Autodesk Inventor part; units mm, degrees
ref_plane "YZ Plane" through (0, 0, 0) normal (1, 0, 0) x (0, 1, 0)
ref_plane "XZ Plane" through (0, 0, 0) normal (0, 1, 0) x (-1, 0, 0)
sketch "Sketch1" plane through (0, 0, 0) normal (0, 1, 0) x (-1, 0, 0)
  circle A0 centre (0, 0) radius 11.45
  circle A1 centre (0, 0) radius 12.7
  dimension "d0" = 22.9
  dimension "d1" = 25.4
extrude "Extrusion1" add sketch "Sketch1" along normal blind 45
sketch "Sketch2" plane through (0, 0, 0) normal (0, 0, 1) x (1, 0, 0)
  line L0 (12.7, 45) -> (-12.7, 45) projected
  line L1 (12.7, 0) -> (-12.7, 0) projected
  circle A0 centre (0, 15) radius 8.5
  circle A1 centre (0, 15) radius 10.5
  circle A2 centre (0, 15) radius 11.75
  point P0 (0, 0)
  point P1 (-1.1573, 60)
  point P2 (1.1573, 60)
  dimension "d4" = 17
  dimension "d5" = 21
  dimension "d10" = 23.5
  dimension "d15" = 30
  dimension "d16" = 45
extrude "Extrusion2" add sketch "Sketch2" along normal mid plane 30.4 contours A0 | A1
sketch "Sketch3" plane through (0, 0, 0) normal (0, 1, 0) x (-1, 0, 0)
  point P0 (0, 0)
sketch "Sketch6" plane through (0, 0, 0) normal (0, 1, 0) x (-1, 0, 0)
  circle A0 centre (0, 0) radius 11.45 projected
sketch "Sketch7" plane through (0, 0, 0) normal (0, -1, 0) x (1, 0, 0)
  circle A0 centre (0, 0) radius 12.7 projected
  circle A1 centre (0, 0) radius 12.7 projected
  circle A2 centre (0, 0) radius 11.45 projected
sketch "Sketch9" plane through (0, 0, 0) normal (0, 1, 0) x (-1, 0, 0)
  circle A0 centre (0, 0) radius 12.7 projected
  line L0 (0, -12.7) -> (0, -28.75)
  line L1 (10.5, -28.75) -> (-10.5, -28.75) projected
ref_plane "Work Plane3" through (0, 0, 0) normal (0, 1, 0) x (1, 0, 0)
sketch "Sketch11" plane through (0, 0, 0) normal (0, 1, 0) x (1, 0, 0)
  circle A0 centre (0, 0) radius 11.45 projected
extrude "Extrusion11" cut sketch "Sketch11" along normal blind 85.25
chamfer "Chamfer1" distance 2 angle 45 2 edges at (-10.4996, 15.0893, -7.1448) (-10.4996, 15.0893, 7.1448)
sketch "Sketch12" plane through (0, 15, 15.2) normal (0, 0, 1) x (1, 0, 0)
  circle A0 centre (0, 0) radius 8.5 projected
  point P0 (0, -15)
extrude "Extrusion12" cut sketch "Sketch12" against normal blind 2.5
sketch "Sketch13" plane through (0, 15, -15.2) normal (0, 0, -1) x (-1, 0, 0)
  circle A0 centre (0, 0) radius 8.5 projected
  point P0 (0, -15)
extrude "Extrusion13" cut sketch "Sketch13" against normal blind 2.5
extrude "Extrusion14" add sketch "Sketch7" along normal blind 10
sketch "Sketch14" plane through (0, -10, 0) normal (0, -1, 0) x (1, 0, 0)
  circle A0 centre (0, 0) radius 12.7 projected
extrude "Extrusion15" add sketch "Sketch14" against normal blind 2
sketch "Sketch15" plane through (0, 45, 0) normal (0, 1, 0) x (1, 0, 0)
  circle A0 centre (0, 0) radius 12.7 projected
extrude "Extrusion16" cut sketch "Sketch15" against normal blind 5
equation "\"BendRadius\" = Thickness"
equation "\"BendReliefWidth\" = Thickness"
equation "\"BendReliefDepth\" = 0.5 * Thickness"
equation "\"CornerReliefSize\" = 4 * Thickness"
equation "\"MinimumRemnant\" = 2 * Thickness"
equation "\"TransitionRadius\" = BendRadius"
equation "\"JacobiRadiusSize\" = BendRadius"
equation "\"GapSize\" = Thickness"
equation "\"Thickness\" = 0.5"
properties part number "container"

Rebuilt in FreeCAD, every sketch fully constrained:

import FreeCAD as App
import Part
import Sketcher
from FreeCAD import Vector
Q = App.Units.Quantity


def edges_at(feature, points):
    """Names of the edges that pass closest to the given points."""
    edges = feature.Shape.Edges
    near = lambda p: min(range(len(edges)), key=lambda i: edges[i].distToShape(Part.Vertex(*p))[0])
    return sorted({f"Edge{near(p) + 1}" for p in points})

doc = App.newDocument("Part")
body = doc.addObject("PartDesign::Body", "Body")

sketch1 = doc.addObject("Sketcher::SketchObject", "Sketch")
body.addObject(sketch1)
sketch1.AttachmentSupport = (doc.XZ_Plane, [""])
sketch1.MapMode = "FlatFace"
sketch1.addGeometry(Part.Circle(Vector(0, 0, 0), Vector(0, 0, 1), 12.7), False)
sketch1.addGeometry(Part.Circle(Vector(0, 0, 0), Vector(0, 0, 1), 11.45), False)
sketch1.addConstraint(Sketcher.Constraint("Coincident", 0, 3, -1, 1))
sketch1.addConstraint(Sketcher.Constraint("Coincident", 1, 3, -1, 1))
sketch1.addConstraint(Sketcher.Constraint("Diameter", 0, Q("25.4 mm")))
sketch1.addConstraint(Sketcher.Constraint("Diameter", 1, Q("22.9 mm")))
pad1 = doc.addObject("PartDesign::Pad", "Pad")
body.addObject(pad1)
pad1.Profile = sketch1
pad1.Length = 45
pad1.Reversed = True

sketch2 = doc.addObject("Sketcher::SketchObject", "Sketch001")
body.addObject(sketch2)
sketch2.AttachmentSupport = (doc.XY_Plane, [""])
sketch2.MapMode = "FlatFace"
sketch2.addGeometry(Part.Circle(Vector(0, 15, 0), Vector(0, 0, 1), 10.5), False)
sketch2.addConstraint(Sketcher.Constraint("PointOnObject", 0, 3, -2))
sketch2.addConstraint(Sketcher.Constraint("Diameter", 0, Q("21 mm")))
sketch2.addConstraint(Sketcher.Constraint("DistanceY", -1, 1, 0, 3, Q("15 mm")))
pad2 = doc.addObject("PartDesign::Pad", "Pad001")
body.addObject(pad2)
pad2.Profile = sketch2
pad2.Length = 30.4
pad2.Midplane = True

sketch3 = doc.addObject("Sketcher::SketchObject", "Sketch002")
body.addObject(sketch3)
sketch3.AttachmentSupport = (doc.XZ_Plane, [""])
sketch3.MapMode = "FlatFace"
sketch3.addGeometry(Part.Circle(Vector(0, 0, 0), Vector(0, 0, 1), 11.45), False)
sketch3.addConstraint(Sketcher.Constraint("Coincident", 0, 3, -1, 1))
sketch3.addConstraint(Sketcher.Constraint("Diameter", 0, Q("22.9 mm")))
pocket1 = doc.addObject("PartDesign::Pocket", "Pocket")
body.addObject(pocket1)
pocket1.Profile = sketch3
pocket1.Length = 85.25
doc.recompute()

chamfer = doc.addObject("PartDesign::Chamfer", "Chamfer")
body.addObject(chamfer)
chamfer.Base = (pocket1, edges_at(pocket1, [(-10.5, 15.089, -7.145), (-10.5, 15.089, 7.145)]))
chamfer.Size = 2

sketch4 = doc.addObject("Sketcher::SketchObject", "Sketch003")
body.addObject(sketch4)
sketch4.AttachmentSupport = (doc.XY_Plane, [""])
sketch4.MapMode = "FlatFace"
sketch4.AttachmentOffset = App.Placement(Vector(0, 0, 15.2), App.Rotation())
sketch4.addGeometry(Part.Circle(Vector(0, 15, 0), Vector(0, 0, 1), 8.5), False)
sketch4.addConstraint(Sketcher.Constraint("PointOnObject", 0, 3, -2))
sketch4.addConstraint(Sketcher.Constraint("Diameter", 0, Q("17 mm")))
sketch4.addConstraint(Sketcher.Constraint("DistanceY", -1, 1, 0, 3, Q("15 mm")))
pocket2 = doc.addObject("PartDesign::Pocket", "Pocket001")
body.addObject(pocket2)
pocket2.Profile = sketch4
pocket2.Length = 2.5

sketch5 = doc.addObject("Sketcher::SketchObject", "Sketch004")
body.addObject(sketch5)
sketch5.AttachmentSupport = (doc.XY_Plane, [""])
sketch5.MapMode = "FlatFace"
sketch5.AttachmentOffset = App.Placement(Vector(0, 0, -15.2), App.Rotation())
sketch5.addGeometry(Part.Circle(Vector(0, 15, 0), Vector(0, 0, 1), 8.5), False)
sketch5.addConstraint(Sketcher.Constraint("PointOnObject", 0, 3, -2))
sketch5.addConstraint(Sketcher.Constraint("Diameter", 0, Q("17 mm")))
sketch5.addConstraint(Sketcher.Constraint("DistanceY", -1, 1, 0, 3, Q("15 mm")))
pocket3 = doc.addObject("PartDesign::Pocket", "Pocket002")
body.addObject(pocket3)
pocket3.Profile = sketch5
pocket3.Length = 2.5
pocket3.Reversed = True

sketch6 = doc.addObject("Sketcher::SketchObject", "Sketch005")
body.addObject(sketch6)
sketch6.AttachmentSupport = (doc.XZ_Plane, [""])
sketch6.MapMode = "FlatFace"
sketch6.addGeometry(Part.Circle(Vector(0, 0, 0), Vector(0, 0, 1), 12.7), False)
sketch6.addGeometry(Part.Circle(Vector(0, 0, 0), Vector(0, 0, 1), 11.45), False)
sketch6.addConstraint(Sketcher.Constraint("Coincident", 0, 3, -1, 1))
sketch6.addConstraint(Sketcher.Constraint("Coincident", 1, 3, -1, 1))
sketch6.addConstraint(Sketcher.Constraint("Diameter", 0, Q("25.4 mm")))
sketch6.addConstraint(Sketcher.Constraint("Diameter", 1, Q("22.9 mm")))
pad3 = doc.addObject("PartDesign::Pad", "Pad002")
body.addObject(pad3)
pad3.Profile = sketch6
pad3.Length = 10

sketch7 = doc.addObject("Sketcher::SketchObject", "Sketch006")
body.addObject(sketch7)
sketch7.AttachmentSupport = (doc.XZ_Plane, [""])
sketch7.MapMode = "FlatFace"
sketch7.AttachmentOffset = App.Placement(Vector(0, 0, 10), App.Rotation())
sketch7.addGeometry(Part.Circle(Vector(0, 0, 0), Vector(0, 0, 1), 12.7), False)
sketch7.addConstraint(Sketcher.Constraint("Coincident", 0, 3, -1, 1))
sketch7.addConstraint(Sketcher.Constraint("Diameter", 0, Q("25.4 mm")))
pad4 = doc.addObject("PartDesign::Pad", "Pad003")
body.addObject(pad4)
pad4.Profile = sketch7
pad4.Length = 2
pad4.Reversed = True

sketch8 = doc.addObject("Sketcher::SketchObject", "Sketch007")
body.addObject(sketch8)
sketch8.AttachmentSupport = (doc.XZ_Plane, [""])
sketch8.MapMode = "FlatFace"
sketch8.AttachmentOffset = App.Placement(Vector(0, 0, -45), App.Rotation())
sketch8.addGeometry(Part.Circle(Vector(0, 0, 0), Vector(0, 0, 1), 12.7), False)
sketch8.addConstraint(Sketcher.Constraint("Coincident", 0, 3, -1, 1))
sketch8.addConstraint(Sketcher.Constraint("Diameter", 0, Q("25.4 mm")))
pocket4 = doc.addObject("PartDesign::Pocket", "Pocket003")
body.addObject(pocket4)
pocket4.Profile = sketch8
pocket4.Length = 5
pocket4.Reversed = True

doc.recompute()
